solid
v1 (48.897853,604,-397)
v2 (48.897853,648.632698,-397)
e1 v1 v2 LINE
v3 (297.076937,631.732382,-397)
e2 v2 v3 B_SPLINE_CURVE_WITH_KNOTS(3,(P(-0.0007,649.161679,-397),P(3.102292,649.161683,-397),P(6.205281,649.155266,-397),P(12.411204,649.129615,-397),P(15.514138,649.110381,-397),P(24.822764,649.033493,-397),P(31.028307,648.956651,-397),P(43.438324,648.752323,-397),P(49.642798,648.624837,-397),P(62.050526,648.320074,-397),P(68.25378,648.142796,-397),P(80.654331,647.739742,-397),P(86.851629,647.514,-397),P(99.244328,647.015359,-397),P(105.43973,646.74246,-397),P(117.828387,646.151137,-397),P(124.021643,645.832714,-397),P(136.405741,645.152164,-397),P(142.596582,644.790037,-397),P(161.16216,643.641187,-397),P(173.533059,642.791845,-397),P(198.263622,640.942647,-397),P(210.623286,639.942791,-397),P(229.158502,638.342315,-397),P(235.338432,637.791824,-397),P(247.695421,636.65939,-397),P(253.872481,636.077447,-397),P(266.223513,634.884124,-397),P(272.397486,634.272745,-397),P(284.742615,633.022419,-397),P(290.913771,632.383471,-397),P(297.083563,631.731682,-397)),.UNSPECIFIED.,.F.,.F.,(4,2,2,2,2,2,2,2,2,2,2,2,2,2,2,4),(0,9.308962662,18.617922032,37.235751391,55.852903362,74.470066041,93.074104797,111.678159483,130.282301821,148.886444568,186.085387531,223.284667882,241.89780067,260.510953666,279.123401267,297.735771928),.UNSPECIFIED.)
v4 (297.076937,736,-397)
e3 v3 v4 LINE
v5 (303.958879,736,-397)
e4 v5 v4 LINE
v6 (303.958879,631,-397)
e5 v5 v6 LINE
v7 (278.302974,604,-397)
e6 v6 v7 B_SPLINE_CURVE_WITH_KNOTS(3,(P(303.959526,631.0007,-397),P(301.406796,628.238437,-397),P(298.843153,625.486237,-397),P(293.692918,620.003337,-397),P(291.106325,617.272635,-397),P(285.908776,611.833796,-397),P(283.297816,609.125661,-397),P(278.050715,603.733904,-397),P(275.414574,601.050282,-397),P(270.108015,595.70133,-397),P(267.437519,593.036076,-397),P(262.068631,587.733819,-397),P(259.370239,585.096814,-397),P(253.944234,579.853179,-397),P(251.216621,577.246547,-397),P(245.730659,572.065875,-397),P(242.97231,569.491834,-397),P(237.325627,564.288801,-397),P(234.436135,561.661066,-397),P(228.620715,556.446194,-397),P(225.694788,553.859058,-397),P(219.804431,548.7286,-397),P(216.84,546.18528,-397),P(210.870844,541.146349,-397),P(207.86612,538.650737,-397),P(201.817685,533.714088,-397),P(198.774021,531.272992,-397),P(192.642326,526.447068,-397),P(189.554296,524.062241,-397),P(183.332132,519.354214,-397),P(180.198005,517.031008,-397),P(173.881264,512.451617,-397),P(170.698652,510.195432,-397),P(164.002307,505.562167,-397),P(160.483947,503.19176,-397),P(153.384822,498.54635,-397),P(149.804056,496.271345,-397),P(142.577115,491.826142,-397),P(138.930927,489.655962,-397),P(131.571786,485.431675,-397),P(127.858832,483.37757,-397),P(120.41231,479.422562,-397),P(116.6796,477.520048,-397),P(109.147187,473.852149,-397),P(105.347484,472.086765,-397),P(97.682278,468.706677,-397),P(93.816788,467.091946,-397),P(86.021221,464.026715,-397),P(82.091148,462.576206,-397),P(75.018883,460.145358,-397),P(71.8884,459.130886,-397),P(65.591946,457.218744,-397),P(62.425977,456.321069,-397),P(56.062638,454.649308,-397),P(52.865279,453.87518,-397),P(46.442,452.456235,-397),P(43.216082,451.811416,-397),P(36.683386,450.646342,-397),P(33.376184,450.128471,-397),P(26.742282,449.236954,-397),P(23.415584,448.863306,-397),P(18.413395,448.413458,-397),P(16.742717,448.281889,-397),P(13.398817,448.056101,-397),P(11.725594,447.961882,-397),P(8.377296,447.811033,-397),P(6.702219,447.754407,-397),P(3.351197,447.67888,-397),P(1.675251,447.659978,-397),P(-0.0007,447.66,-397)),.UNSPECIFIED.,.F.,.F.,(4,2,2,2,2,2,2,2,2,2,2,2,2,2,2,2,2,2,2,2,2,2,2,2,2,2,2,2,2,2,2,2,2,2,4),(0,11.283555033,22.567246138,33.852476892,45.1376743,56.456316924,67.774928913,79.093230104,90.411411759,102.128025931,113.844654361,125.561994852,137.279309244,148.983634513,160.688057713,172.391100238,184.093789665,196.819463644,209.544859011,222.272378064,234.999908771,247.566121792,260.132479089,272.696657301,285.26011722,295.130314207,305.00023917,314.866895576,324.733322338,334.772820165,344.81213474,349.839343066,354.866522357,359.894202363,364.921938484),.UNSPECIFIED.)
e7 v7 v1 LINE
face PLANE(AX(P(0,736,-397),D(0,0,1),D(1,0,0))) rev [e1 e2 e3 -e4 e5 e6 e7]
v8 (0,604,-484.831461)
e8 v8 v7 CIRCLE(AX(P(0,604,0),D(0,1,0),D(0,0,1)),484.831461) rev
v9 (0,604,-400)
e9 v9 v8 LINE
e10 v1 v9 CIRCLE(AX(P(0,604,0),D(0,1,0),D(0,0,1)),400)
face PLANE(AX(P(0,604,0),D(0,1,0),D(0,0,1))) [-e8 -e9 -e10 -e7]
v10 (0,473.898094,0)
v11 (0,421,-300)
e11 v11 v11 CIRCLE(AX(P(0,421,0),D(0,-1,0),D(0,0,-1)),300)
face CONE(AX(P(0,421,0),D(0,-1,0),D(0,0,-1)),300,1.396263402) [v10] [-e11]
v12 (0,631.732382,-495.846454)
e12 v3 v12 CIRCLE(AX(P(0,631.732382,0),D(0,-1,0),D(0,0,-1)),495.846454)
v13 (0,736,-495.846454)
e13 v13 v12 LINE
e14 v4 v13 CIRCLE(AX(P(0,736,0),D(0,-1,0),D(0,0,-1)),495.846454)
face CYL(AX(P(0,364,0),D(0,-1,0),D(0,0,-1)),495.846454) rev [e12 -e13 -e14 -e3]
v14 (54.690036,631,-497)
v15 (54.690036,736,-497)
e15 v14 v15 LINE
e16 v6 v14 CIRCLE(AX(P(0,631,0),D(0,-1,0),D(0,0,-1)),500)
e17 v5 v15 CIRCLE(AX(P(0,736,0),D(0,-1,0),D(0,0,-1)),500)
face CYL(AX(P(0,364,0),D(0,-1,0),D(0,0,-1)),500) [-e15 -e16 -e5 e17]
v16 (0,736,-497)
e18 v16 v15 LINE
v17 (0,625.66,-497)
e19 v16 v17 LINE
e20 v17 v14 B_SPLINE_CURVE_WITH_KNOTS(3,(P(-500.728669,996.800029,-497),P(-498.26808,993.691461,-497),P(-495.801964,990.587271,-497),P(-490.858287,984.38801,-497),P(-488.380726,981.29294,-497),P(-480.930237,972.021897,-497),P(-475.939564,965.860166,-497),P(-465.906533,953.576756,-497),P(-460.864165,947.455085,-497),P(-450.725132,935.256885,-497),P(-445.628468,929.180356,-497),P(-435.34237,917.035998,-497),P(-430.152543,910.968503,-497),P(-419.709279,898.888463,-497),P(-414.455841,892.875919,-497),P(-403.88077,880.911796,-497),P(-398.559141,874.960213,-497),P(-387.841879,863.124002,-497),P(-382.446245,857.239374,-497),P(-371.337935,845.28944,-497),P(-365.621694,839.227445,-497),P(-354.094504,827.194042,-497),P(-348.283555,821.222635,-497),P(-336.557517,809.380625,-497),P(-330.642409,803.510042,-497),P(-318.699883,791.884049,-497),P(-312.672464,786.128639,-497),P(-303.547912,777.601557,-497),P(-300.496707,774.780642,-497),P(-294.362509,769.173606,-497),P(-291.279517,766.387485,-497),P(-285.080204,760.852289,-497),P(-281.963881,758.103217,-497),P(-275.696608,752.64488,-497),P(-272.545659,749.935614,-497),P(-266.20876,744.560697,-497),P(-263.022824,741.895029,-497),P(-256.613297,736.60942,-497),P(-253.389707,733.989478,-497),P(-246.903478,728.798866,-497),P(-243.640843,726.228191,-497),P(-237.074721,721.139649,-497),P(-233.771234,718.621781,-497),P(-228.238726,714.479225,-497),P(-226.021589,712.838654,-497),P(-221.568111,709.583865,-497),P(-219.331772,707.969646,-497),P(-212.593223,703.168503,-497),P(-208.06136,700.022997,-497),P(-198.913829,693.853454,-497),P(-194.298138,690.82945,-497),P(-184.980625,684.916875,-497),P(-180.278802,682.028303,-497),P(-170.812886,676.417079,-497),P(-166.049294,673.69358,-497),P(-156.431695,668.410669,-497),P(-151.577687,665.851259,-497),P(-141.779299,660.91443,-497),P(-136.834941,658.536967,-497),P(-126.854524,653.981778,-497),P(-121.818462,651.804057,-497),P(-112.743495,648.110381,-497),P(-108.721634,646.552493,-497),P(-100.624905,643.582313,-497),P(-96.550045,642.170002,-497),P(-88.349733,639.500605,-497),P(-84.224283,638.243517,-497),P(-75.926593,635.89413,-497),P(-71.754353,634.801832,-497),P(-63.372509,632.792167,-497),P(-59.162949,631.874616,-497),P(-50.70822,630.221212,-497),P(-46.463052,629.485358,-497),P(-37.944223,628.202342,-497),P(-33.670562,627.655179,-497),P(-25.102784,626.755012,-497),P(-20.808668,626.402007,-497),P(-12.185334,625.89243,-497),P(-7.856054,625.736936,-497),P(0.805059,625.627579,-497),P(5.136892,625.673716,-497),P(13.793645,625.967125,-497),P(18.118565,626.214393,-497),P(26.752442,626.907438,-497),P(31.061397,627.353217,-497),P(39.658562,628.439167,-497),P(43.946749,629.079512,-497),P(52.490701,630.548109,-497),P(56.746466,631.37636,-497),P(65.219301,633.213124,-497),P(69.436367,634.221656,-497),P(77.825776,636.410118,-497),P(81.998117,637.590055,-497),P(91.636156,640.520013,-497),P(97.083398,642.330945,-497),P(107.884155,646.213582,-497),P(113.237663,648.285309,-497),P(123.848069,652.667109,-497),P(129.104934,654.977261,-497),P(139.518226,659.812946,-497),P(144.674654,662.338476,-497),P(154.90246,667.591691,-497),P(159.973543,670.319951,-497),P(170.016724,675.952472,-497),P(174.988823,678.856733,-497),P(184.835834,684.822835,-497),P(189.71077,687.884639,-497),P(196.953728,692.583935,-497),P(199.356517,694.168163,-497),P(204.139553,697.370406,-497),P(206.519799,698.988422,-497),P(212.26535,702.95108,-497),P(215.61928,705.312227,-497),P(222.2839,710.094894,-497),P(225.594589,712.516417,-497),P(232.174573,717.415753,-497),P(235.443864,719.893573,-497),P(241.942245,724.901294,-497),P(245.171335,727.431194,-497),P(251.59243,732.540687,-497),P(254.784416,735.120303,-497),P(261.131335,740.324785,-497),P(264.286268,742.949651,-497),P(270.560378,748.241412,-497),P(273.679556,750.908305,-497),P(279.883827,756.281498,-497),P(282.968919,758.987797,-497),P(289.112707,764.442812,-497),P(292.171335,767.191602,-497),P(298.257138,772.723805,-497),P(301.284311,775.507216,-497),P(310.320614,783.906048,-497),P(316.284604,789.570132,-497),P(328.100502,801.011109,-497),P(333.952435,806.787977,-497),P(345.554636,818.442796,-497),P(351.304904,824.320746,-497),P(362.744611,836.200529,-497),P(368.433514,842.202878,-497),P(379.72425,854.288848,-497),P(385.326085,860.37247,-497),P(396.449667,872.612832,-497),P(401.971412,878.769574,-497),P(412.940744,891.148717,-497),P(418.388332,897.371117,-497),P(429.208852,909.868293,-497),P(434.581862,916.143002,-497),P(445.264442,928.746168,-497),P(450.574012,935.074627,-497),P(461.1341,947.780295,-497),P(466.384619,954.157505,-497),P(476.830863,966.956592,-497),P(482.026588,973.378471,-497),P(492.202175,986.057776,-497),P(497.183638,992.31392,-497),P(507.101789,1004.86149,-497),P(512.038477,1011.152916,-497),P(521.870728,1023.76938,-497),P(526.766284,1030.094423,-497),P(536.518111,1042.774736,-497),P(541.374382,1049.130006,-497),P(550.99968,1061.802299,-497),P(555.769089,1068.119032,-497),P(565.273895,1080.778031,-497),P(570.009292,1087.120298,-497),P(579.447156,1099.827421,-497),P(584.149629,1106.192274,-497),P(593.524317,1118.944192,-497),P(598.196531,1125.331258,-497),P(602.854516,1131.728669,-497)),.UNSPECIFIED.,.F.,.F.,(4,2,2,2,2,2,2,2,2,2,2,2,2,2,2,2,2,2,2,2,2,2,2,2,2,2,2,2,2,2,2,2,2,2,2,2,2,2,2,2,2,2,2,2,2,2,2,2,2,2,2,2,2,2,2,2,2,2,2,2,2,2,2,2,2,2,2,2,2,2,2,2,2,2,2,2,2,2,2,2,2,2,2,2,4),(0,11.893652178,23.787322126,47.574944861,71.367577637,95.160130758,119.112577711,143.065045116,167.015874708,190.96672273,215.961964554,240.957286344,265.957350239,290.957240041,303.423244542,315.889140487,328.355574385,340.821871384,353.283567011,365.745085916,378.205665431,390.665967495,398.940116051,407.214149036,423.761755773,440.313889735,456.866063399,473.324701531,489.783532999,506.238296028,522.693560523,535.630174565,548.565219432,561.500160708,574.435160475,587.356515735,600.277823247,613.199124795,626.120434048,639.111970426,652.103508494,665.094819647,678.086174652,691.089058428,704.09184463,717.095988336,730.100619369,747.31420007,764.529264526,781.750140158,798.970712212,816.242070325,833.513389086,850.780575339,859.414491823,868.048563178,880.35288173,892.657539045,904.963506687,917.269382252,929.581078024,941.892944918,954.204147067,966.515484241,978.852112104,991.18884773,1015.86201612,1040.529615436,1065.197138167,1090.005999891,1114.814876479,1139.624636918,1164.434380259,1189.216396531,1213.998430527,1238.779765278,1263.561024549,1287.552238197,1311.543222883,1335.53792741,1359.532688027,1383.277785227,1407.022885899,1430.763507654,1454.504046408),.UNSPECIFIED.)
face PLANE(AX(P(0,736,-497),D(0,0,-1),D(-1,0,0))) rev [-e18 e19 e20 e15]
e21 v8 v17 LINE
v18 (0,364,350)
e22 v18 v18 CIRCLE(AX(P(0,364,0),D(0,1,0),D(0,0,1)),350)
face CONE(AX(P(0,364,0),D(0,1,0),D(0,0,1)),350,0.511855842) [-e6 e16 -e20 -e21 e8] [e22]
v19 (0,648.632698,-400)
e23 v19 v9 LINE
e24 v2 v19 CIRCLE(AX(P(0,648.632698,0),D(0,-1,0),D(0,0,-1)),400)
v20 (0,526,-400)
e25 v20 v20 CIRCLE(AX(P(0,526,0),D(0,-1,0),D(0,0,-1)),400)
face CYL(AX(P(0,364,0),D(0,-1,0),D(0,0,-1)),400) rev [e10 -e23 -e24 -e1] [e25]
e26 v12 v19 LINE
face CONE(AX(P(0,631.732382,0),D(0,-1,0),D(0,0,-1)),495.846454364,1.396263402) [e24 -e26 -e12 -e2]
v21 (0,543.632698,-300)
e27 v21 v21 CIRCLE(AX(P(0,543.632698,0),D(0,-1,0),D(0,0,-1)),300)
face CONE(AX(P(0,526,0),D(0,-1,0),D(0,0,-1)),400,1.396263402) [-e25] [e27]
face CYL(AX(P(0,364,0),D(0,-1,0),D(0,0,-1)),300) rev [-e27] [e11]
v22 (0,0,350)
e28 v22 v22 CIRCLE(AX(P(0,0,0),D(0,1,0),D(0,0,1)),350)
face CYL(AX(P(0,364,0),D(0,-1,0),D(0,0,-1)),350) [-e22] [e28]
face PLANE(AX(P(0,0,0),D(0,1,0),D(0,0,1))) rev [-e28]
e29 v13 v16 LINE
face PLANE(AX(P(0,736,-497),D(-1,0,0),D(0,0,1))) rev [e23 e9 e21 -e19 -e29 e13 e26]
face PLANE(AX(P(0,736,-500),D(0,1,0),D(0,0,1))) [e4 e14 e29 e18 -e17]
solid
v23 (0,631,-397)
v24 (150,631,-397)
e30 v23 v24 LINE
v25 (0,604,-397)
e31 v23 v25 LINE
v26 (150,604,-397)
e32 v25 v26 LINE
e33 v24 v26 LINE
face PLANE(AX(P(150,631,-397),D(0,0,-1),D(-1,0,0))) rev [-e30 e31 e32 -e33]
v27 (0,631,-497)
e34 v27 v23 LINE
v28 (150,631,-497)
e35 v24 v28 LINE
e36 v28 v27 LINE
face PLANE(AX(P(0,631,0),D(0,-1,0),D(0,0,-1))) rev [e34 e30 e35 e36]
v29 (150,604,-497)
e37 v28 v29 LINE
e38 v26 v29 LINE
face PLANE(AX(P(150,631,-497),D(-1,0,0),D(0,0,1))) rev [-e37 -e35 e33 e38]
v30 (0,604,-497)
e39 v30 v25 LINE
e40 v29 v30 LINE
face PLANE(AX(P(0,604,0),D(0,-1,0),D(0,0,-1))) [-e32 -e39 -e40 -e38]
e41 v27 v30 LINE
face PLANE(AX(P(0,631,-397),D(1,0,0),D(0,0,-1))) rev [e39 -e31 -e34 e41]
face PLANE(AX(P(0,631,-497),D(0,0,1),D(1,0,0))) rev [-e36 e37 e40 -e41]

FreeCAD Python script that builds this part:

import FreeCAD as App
import Part
import Sketcher

V = App.Vector
Q = App.Units.Quantity


def add_polygon(sketch, points):
    """Adds a closed chain of lines whose ends are joined by coincident constraints."""
    first, n = sketch.GeometryCount, len(points)
    for a, b in zip(points, points[1:] + points[:1]):
        sketch.addGeometry(Part.LineSegment(App.Vector(*a, 0), App.Vector(*b, 0)), False)
    for i in range(n):
        sketch.addConstraint(Sketcher.Constraint("Coincident", first + i, 2, first + (i + 1) % n, 1))

doc = App.newDocument("Part")
body = doc.addObject("PartDesign::Body", "Body")

# Sketch on XZ plane
sketch1 = doc.addObject("Sketcher::SketchObject", "Sketch")
body.addObject(sketch1)
sketch1.AttachmentSupport = (doc.XZ_Plane, [""])
sketch1.MapMode = "FlatFace"
sketch1.addGeometry(Part.Circle(V(0, 0, 0), V(0, 0, 1), 350), False)
sketch1.addConstraint(Sketcher.Constraint("Coincident", 0, 3, -1, 1))
sketch1.addConstraint(Sketcher.Constraint("Diameter", 0, Q("700 mm")))
pad1 = doc.addObject("PartDesign::Pad", "Pad")
body.addObject(pad1)
pad1.Profile = sketch1
pad1.Length = 364
pad1.Reversed = True

# Sketch on YZ plane
sketch2 = doc.addObject("Sketcher::SketchObject", "Sketch001")
body.addObject(sketch2)
sketch2.AttachmentSupport = (doc.YZ_Plane, [""])
sketch2.MapMode = "FlatFace"
add_polygon(sketch2, [(364, -350), (631, -500), (736, -500), (736, -495.846454), (631.732382, -495.846454), (648.632698, -400), (526, -400), (543.632698, -300), (421, -300), (473.898094, 0), (364, 0)])  # lines 0-10
sketch2.addConstraint(Sketcher.Constraint("Horizontal", 1))
sketch2.addConstraint(Sketcher.Constraint("Vertical", 2))
sketch2.addConstraint(Sketcher.Constraint("Horizontal", 3))
sketch2.addConstraint(Sketcher.Constraint("Horizontal", 5))
sketch2.addConstraint(Sketcher.Constraint("Horizontal", 7))
sketch2.addConstraint(Sketcher.Constraint("Horizontal", 9))
sketch2.addConstraint(Sketcher.Constraint("Vertical", 10))
sketch2.addConstraint(Sketcher.Constraint("PointOnObject", 8, 2, -1))
sketch2.addConstraint(Sketcher.Constraint("Parallel", 4, 6))
sketch2.addConstraint(Sketcher.Constraint("Parallel", 6, 8))
sketch2.addConstraint(Sketcher.Constraint("Equal", 5, 7))
sketch2.addConstraint(Sketcher.Constraint("DistanceX", 1, 1, 1, 2, Q("105 mm")))
sketch2.addConstraint(Sketcher.Constraint("DistanceY", 10, 2, 10, 1, Q("350 mm")))
sketch2.addConstraint(Sketcher.Constraint("Angle", 4, Q("80 deg")))
sketch2.addConstraint(Sketcher.Constraint("DistanceX", -1, 1, 0, 2, Q("631 mm")))
sketch2.addConstraint(Sketcher.Constraint("DistanceY", 0, 2, -1, 1, Q("500 mm")))
sketch2.addConstraint(Sketcher.Constraint("DistanceY", 4, 2, -1, 1, Q("400 mm")))
sketch2.addConstraint(Sketcher.Constraint("DistanceX", -1, 1, 5, 2, Q("526 mm")))
sketch2.addConstraint(Sketcher.Constraint("DistanceY", 6, 2, -1, 1, Q("300 mm")))
sketch2.addConstraint(Sketcher.Constraint("DistanceX", -1, 1, 7, 2, Q("421 mm")))
sketch2.addConstraint(Sketcher.Constraint("DistanceX", -1, 1, 9, 2, Q("364 mm")))
sketch2.addConstraint(Sketcher.Constraint("Distance", 4, Q("97.32504 mm")))
revolution = doc.addObject("PartDesign::Revolution", "Revolution")
body.addObject(revolution)
revolution.Profile = sketch2
revolution.ReferenceAxis = (sketch2, ["H_Axis"])
revolution.Angle = 360

# Sketch on XZ plane
sketch3 = doc.addObject("Sketcher::SketchObject", "Sketch002")
body.addObject(sketch3)
sketch3.AttachmentSupport = (doc.XZ_Plane, [""])
sketch3.MapMode = "FlatFace"
sketch3.AttachmentOffset = App.Placement(V(0, 0, -604), App.Rotation())
add_polygon(sketch3, [(1000, -497), (1000, -397), (0, -397), (0, -497)])  # lines 0-3
sketch3.addConstraint(Sketcher.Constraint("Vertical", 0))
sketch3.addConstraint(Sketcher.Constraint("Horizontal", 1))
sketch3.addConstraint(Sketcher.Constraint("Vertical", 2))
sketch3.addConstraint(Sketcher.Constraint("Horizontal", 3))
sketch3.addConstraint(Sketcher.Constraint("PointOnObject", 1, 2, -2))
sketch3.addConstraint(Sketcher.Constraint("DistanceX", 1, 2, 1, 1, Q("1000 mm")))
sketch3.addConstraint(Sketcher.Constraint("DistanceY", 0, 1, 0, 2, Q("100 mm")))
sketch3.addConstraint(Sketcher.Constraint("DistanceY", 0, 2, -1, 1, Q("397 mm")))
pocket1 = doc.addObject("PartDesign::Pocket", "Pocket")
body.addObject(pocket1)
pocket1.Profile = sketch3
pocket1.Type = "ThroughAll"
body2 = doc.addObject("PartDesign::Body", "Body001")

# Sketch on XZ plane
sketch4 = doc.addObject("Sketcher::SketchObject", "Sketch003")
body2.addObject(sketch4)
sketch4.AttachmentSupport = (doc.getObject("XZ_Plane001"), [""])
sketch4.MapMode = "FlatFace"
sketch4.AttachmentOffset = App.Placement(V(0, 0, -604), App.Rotation())
add_polygon(sketch4, [(0, -497), (0, -397), (150, -397), (150, -497)])  # lines 0-3
sketch4.addConstraint(Sketcher.Constraint("Vertical", 0))
sketch4.addConstraint(Sketcher.Constraint("Horizontal", 1))
sketch4.addConstraint(Sketcher.Constraint("Vertical", 2))
sketch4.addConstraint(Sketcher.Constraint("Horizontal", 3))
sketch4.addConstraint(Sketcher.Constraint("PointOnObject", 0, 2, -2))
sketch4.addConstraint(Sketcher.Constraint("DistanceX", 1, 1, 1, 2, Q("150 mm")))
sketch4.addConstraint(Sketcher.Constraint("DistanceY", 0, 1, 0, 2, Q("100 mm")))
sketch4.addConstraint(Sketcher.Constraint("DistanceY", 0, 2, -1, 1, Q("397 mm")))
pad2 = doc.addObject("PartDesign::Pad", "Pad001")
body2.addObject(pad2)
pad2.Profile = sketch4
pad2.Length = 27
pad2.Reversed = True

doc.recompute()
